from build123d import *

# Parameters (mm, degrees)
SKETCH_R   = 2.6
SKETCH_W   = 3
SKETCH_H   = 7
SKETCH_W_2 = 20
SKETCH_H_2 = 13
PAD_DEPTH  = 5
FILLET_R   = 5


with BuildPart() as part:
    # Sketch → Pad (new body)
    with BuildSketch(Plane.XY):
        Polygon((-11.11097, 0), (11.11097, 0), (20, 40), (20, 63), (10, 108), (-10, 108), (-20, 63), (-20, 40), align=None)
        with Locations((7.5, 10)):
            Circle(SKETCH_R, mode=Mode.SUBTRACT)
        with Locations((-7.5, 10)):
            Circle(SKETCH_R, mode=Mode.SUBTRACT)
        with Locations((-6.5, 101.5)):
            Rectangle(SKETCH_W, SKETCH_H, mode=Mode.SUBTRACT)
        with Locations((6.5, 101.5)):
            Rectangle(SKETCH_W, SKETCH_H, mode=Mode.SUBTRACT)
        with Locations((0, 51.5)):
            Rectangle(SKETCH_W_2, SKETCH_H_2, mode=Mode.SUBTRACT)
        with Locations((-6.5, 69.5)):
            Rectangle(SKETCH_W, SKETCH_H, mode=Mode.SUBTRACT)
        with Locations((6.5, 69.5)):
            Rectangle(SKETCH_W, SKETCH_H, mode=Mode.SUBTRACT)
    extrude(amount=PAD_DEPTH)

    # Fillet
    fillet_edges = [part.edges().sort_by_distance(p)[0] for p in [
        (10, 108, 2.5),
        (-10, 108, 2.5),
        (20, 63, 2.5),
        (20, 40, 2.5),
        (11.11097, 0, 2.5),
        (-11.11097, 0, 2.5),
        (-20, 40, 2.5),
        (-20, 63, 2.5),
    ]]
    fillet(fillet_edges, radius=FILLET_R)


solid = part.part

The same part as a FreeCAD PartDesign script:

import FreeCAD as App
import Part
import Sketcher

V = App.Vector


def edges_at(feature, points):
    """Names of the edges that pass closest to the given points."""
    edges = feature.Shape.Edges
    near = lambda p: min(range(len(edges)), key=lambda i: edges[i].distToShape(Part.Vertex(*p))[0])
    return sorted({f"Edge{near(p) + 1}" for p in points})

doc = App.newDocument("Part")
body = doc.addObject("PartDesign::Body", "Body")

# Sketch on XY plane
sketch1 = doc.addObject("Sketcher::SketchObject", "Sketch")
body.addObject(sketch1)
sketch1.AttachmentSupport = (doc.XY_Plane, [""])
sketch1.MapMode = "FlatFace"
sketch1.addGeometry(Part.LineSegment(V(-11.1, 0, 0), V(11.1, 0, 0)), False)
sketch1.addGeometry(Part.LineSegment(V(11.1, 0, 0), V(20, 40, 0)), False)
sketch1.addGeometry(Part.LineSegment(V(20, 40, 0), V(20, 63, 0)), False)
sketch1.addGeometry(Part.LineSegment(V(20, 63, 0), V(10, 108, 0)), False)
sketch1.addGeometry(Part.LineSegment(V(10, 108, 0), V(-10, 108, 0)), False)
sketch1.addGeometry(Part.LineSegment(V(-10, 108, 0), V(-20, 63, 0)), False)
sketch1.addGeometry(Part.LineSegment(V(-20, 63, 0), V(-20, 40, 0)), False)
sketch1.addGeometry(Part.LineSegment(V(-20, 40, 0), V(-11.1, 0, 0)), False)
sketch1.addGeometry(Part.Circle(V(-7.5, 10, 0), V(0, 0, 1), 2.6), False)
sketch1.addGeometry(Part.Circle(V(7.5, 10, 0), V(0, 0, 1), 2.6), False)
sketch1.addGeometry(Part.LineSegment(V(10, 45, 0), V(-10, 45, 0)), False)
sketch1.addGeometry(Part.LineSegment(V(-10, 45, 0), V(-10, 58, 0)), False)
sketch1.addGeometry(Part.LineSegment(V(-10, 58, 0), V(10, 58, 0)), False)
sketch1.addGeometry(Part.LineSegment(V(10, 58, 0), V(10, 45, 0)), False)
sketch1.addGeometry(Part.LineSegment(V(-5, 66, 0), V(-8, 66, 0)), False)
sketch1.addGeometry(Part.LineSegment(V(-8, 66, 0), V(-8, 73, 0)), False)
sketch1.addGeometry(Part.LineSegment(V(-8, 73, 0), V(-5, 73, 0)), False)
sketch1.addGeometry(Part.LineSegment(V(-5, 73, 0), V(-5, 66, 0)), False)
sketch1.addGeometry(Part.LineSegment(V(-5, 98, 0), V(-8, 98, 0)), False)
sketch1.addGeometry(Part.LineSegment(V(-8, 98, 0), V(-8, 105, 0)), False)
sketch1.addGeometry(Part.LineSegment(V(-8, 105, 0), V(-5, 105, 0)), False)
sketch1.addGeometry(Part.LineSegment(V(-5, 105, 0), V(-5, 98, 0)), False)
sketch1.addGeometry(Part.LineSegment(V(8, 66, 0), V(5, 66, 0)), False)
sketch1.addGeometry(Part.LineSegment(V(5, 66, 0), V(5, 73, 0)), False)
sketch1.addGeometry(Part.LineSegment(V(5, 73, 0), V(8, 73, 0)), False)
sketch1.addGeometry(Part.LineSegment(V(8, 73, 0), V(8, 66, 0)), False)
sketch1.addGeometry(Part.LineSegment(V(8, 98, 0), V(5, 98, 0)), False)
sketch1.addGeometry(Part.LineSegment(V(5, 98, 0), V(5, 105, 0)), False)
sketch1.addGeometry(Part.LineSegment(V(5, 105, 0), V(8, 105, 0)), False)
sketch1.addGeometry(Part.LineSegment(V(8, 105, 0), V(8, 98, 0)), False)
sketch1.addConstraint(Sketcher.Constraint("Coincident", 0, 2, 1, 1))
sketch1.addConstraint(Sketcher.Constraint("Coincident", 1, 2, 2, 1))
sketch1.addConstraint(Sketcher.Constraint("Coincident", 2, 2, 3, 1))
sketch1.addConstraint(Sketcher.Constraint("Coincident", 3, 2, 4, 1))
sketch1.addConstraint(Sketcher.Constraint("Coincident", 4, 2, 5, 1))
sketch1.addConstraint(Sketcher.Constraint("Coincident", 5, 2, 6, 1))
sketch1.addConstraint(Sketcher.Constraint("Coincident", 6, 2, 7, 1))
sketch1.addConstraint(Sketcher.Constraint("Coincident", 7, 2, 0, 1))
sketch1.addConstraint(Sketcher.Constraint("Coincident", 10, 2, 11, 1))
sketch1.addConstraint(Sketcher.Constraint("Coincident", 11, 2, 12, 1))
sketch1.addConstraint(Sketcher.Constraint("Coincident", 12, 2, 13, 1))
sketch1.addConstraint(Sketcher.Constraint("Coincident", 13, 2, 10, 1))
sketch1.addConstraint(Sketcher.Constraint("Coincident", 14, 2, 15, 1))
sketch1.addConstraint(Sketcher.Constraint("Coincident", 15, 2, 16, 1))
sketch1.addConstraint(Sketcher.Constraint("Coincident", 16, 2, 17, 1))
sketch1.addConstraint(Sketcher.Constraint("Coincident", 17, 2, 14, 1))
sketch1.addConstraint(Sketcher.Constraint("Coincident", 18, 2, 19, 1))
sketch1.addConstraint(Sketcher.Constraint("Coincident", 19, 2, 20, 1))
sketch1.addConstraint(Sketcher.Constraint("Coincident", 20, 2, 21, 1))
sketch1.addConstraint(Sketcher.Constraint("Coincident", 21, 2, 18, 1))
sketch1.addConstraint(Sketcher.Constraint("Coincident", 22, 2, 23, 1))
sketch1.addConstraint(Sketcher.Constraint("Coincident", 23, 2, 24, 1))
sketch1.addConstraint(Sketcher.Constraint("Coincident", 24, 2, 25, 1))
sketch1.addConstraint(Sketcher.Constraint("Coincident", 25, 2, 22, 1))
sketch1.addConstraint(Sketcher.Constraint("Coincident", 26, 2, 27, 1))
sketch1.addConstraint(Sketcher.Constraint("Coincident", 27, 2, 28, 1))
sketch1.addConstraint(Sketcher.Constraint("Coincident", 28, 2, 29, 1))
sketch1.addConstraint(Sketcher.Constraint("Coincident", 29, 2, 26, 1))
sketch1.addConstraint(Sketcher.Constraint("Horizontal", 0))
sketch1.addConstraint(Sketcher.Constraint("Vertical", 2))
sketch1.addConstraint(Sketcher.Constraint("Horizontal", 4))
sketch1.addConstraint(Sketcher.Constraint("Vertical", 6))
sketch1.addConstraint(Sketcher.Constraint("Horizontal", 10))
sketch1.addConstraint(Sketcher.Constraint("Vertical", 11))
sketch1.addConstraint(Sketcher.Constraint("Horizontal", 12))
sketch1.addConstraint(Sketcher.Constraint("Vertical", 13))
sketch1.addConstraint(Sketcher.Constraint("Horizontal", 14))
sketch1.addConstraint(Sketcher.Constraint("Vertical", 15))
sketch1.addConstraint(Sketcher.Constraint("Horizontal", 16))
sketch1.addConstraint(Sketcher.Constraint("Vertical", 17))
sketch1.addConstraint(Sketcher.Constraint("Horizontal", 18))
sketch1.addConstraint(Sketcher.Constraint("Vertical", 19))
sketch1.addConstraint(Sketcher.Constraint("Horizontal", 20))
sketch1.addConstraint(Sketcher.Constraint("Vertical", 21))
sketch1.addConstraint(Sketcher.Constraint("Horizontal", 22))
sketch1.addConstraint(Sketcher.Constraint("Vertical", 23))
sketch1.addConstraint(Sketcher.Constraint("Horizontal", 24))
sketch1.addConstraint(Sketcher.Constraint("Vertical", 25))
sketch1.addConstraint(Sketcher.Constraint("Horizontal", 26))
sketch1.addConstraint(Sketcher.Constraint("Vertical", 27))
sketch1.addConstraint(Sketcher.Constraint("Horizontal", 28))
sketch1.addConstraint(Sketcher.Constraint("Vertical", 29))
sketch1.addConstraint(Sketcher.Constraint("Equal", 8, 9))
sketch1.addConstraint(Sketcher.Constraint("Symmetric", 0, 2, 7, 2, -1, 1))
sketch1.addConstraint(Sketcher.Constraint("Symmetric", 8, 3, 9, 3, -2))
sketch1.addConstraint(Sketcher.Constraint("Symmetric", 2, 2, 5, 2, -2))
sketch1.addConstraint(Sketcher.Constraint("Symmetric", 17, 2, 22, 2, -2))
sketch1.addConstraint(Sketcher.Constraint("Symmetric", 15, 2, 24, 2, -2))
sketch1.addConstraint(Sketcher.Constraint("Symmetric", 21, 2, 26, 2, -2))
sketch1.addConstraint(Sketcher.Constraint("Symmetric", 19, 2, 28, 2, -2))
sketch1.addConstraint(Sketcher.Constraint("Horizontal", 1, 2, 6, 2))
sketch1.addConstraint(Sketcher.Constraint("Vertical", 4, 2, 10, 2))
sketch1.addConstraint(Sketcher.Constraint("Vertical", 3, 2, 12, 2))
sketch1.addConstraint(Sketcher.Constraint("Vertical", 15, 2, 18, 2))
sketch1.addConstraint(Sketcher.Constraint("Vertical", 17, 2, 20, 2))
sketch1.addConstraint(Sketcher.Constraint("Equal", 17, 19))
sketch1.addConstraint(Sketcher.Constraint("Equal", 3, 5))
sketch1.addConstraint(Sketcher.Constraint("Diameter", 8, 5.2))
sketch1.addConstraint(Sketcher.Constraint("DistanceX", 4, 2, 4, 1, 20.0))
sketch1.addConstraint(Sketcher.Constraint("DistanceX", 14, 2, 14, 1, 3.0))
sketch1.addConstraint(Sketcher.Constraint("DistanceY", 2, 1, 2, 2, 23.0))
sketch1.addConstraint(Sketcher.Constraint("DistanceY", 11, 1, 11, 2, 13.0))
sketch1.addConstraint(Sketcher.Constraint("DistanceY", 15, 1, 15, 2, 7.0))
sketch1.addConstraint(Sketcher.Constraint("DistanceY", -1, 1, 8, 3, 10.0))
sketch1.addConstraint(Sketcher.Constraint("DistanceX", -1, 1, 1, 2, 20.0))
sketch1.addConstraint(Sketcher.Constraint("DistanceY", -1, 1, 1, 2, 40.0))
sketch1.addConstraint(Sketcher.Constraint("DistanceY", -1, 1, 3, 2, 108.0))
sketch1.addConstraint(Sketcher.Constraint("DistanceY", -1, 1, 10, 2, 45.0))
sketch1.addConstraint(Sketcher.Constraint("DistanceX", 14, 2, -1, 1, 8.0))
sketch1.addConstraint(Sketcher.Constraint("DistanceY", -1, 1, 14, 2, 66.0))
sketch1.addConstraint(Sketcher.Constraint("DistanceY", -1, 1, 18, 2, 98.0))
sketch1.addConstraint(Sketcher.Constraint("DistanceX", 8, 3, 9, 3, 15.0))
sketch1.addConstraint(Sketcher.Constraint("DistanceX", 0, 1, 0, 2, 22.22194))
pad1 = doc.addObject("PartDesign::Pad", "Pad")
body.addObject(pad1)
pad1.Profile = sketch1
pad1.Length = 5
doc.recompute()

fillet = doc.addObject("PartDesign::Fillet", "Fillet")
body.addObject(fillet)
fillet.Base = (pad1, edges_at(pad1, [
    (10, 108, 2.5),
    (-10, 108, 2.5),
    (20, 63, 2.5),
    (20, 40, 2.5),
    (11.111, 0, 2.5),
    (-11.111, 0, 2.5),
    (-20, 40, 2.5),
    (-20, 63, 2.5),
]))
fillet.Radius = 5

doc.recompute()
